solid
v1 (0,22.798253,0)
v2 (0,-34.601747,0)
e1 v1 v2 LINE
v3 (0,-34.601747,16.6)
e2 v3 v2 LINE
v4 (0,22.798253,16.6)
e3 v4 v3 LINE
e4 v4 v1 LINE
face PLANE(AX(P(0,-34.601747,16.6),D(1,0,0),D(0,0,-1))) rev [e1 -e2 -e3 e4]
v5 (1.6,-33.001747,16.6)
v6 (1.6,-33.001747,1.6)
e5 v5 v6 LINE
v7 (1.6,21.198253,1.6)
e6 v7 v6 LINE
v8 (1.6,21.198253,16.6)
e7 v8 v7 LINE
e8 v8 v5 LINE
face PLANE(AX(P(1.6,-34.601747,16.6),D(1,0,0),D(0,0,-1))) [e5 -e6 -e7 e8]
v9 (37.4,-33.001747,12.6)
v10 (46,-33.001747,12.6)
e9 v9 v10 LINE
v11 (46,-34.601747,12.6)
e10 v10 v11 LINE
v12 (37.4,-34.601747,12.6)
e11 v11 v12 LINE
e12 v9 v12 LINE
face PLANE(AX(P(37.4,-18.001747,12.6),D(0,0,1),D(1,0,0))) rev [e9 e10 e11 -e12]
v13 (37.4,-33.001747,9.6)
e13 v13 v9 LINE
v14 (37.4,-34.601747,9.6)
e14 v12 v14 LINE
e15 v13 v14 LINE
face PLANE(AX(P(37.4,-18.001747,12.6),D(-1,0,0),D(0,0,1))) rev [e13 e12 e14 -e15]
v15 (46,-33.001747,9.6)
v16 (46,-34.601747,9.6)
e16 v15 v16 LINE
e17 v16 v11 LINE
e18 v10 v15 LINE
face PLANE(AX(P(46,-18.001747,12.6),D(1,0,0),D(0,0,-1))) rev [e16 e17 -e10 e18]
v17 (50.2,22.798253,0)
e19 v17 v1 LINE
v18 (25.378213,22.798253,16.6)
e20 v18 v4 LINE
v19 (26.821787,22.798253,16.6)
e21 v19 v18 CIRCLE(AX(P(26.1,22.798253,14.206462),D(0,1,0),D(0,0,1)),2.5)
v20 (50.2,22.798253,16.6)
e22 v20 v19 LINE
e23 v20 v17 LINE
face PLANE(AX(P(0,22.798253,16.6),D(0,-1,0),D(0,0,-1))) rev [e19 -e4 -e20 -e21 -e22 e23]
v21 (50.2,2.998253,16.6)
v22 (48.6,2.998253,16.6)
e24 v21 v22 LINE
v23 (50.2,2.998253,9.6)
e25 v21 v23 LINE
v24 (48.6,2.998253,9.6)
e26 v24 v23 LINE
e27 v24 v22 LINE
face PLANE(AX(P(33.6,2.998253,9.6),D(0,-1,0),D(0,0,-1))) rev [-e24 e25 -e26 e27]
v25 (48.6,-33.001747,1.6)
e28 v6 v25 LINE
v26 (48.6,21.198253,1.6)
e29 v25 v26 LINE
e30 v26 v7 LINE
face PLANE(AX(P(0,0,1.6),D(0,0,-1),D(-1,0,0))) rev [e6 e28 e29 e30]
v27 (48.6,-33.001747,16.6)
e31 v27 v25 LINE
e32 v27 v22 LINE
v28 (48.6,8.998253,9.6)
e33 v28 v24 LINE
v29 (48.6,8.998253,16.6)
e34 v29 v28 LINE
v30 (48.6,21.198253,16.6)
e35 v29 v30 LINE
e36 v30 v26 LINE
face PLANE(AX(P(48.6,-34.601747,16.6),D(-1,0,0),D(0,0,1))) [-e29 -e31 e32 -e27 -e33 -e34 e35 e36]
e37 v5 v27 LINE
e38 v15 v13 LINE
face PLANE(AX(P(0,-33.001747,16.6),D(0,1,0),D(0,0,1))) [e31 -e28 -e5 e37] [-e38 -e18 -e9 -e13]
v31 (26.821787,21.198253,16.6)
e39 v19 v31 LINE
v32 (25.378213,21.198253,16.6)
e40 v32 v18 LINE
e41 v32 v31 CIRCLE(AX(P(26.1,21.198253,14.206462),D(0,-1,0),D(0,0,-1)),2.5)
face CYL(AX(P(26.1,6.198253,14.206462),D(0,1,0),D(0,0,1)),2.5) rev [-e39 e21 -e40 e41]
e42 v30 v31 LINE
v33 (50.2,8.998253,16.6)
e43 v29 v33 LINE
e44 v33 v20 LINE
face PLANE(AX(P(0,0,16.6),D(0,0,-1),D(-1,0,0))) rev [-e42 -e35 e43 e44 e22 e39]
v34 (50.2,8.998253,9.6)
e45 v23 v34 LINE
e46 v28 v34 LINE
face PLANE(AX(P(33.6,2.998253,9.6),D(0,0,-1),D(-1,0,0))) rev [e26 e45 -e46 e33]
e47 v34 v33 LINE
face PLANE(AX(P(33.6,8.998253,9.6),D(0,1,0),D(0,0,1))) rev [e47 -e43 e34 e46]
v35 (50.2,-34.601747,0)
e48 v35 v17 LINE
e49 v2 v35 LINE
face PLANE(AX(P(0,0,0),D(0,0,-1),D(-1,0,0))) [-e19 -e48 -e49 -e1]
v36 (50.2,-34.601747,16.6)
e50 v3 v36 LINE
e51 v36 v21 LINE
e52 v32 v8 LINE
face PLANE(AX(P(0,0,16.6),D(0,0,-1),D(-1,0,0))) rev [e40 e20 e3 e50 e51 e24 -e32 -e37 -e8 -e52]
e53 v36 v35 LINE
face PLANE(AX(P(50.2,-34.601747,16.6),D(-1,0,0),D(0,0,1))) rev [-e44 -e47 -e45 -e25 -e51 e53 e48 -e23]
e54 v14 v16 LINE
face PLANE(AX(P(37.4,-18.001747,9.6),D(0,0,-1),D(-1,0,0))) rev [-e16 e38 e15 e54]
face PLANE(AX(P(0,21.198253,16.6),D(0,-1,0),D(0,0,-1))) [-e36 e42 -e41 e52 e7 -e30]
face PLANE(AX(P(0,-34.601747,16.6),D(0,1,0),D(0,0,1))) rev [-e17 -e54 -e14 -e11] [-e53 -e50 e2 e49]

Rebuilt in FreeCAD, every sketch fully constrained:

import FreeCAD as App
import Part
import Sketcher
from FreeCAD import Vector
Q = App.Units.Quantity


def faces_at(feature, points):
    """Names of the faces that lie closest to the given points."""
    faces = feature.Shape.Faces
    near = lambda p: min(range(len(faces)), key=lambda i: faces[i].distToShape(Part.Vertex(*p))[0])
    return sorted({f"Face{near(p) + 1}" for p in points})

doc = App.newDocument("Part")
body = doc.addObject("PartDesign::Body", "Body")

sketch1 = body.newObject("Sketcher::SketchObject", "Sketch")
sketch1.AttachmentSupport = (doc.getObject("XY_Plane"), [""])
sketch1.MapMode = "FlatFace"
sketch1.addGeometry([
    Part.LineSegment(Vector(0, 23, 0), Vector(0, -35, 0)),
    Part.LineSegment(Vector(0, -35, 0), Vector(50, -35, 0)),
    Part.LineSegment(Vector(50, -35, 0), Vector(50, 23, 0)),
    Part.LineSegment(Vector(50, 23, 0), Vector(0, 23, 0)),
], False)
sketch1.addConstraint([
    Sketcher.Constraint("Coincident", 0, 2, 1, 1),
    Sketcher.Constraint("Coincident", 1, 2, 2, 1),
    Sketcher.Constraint("Coincident", 2, 2, 3, 1),
    Sketcher.Constraint("Coincident", 3, 2, 0, 1),
    Sketcher.Constraint("Vertical", 0),
    Sketcher.Constraint("Horizontal", 1),
    Sketcher.Constraint("Vertical", 2),
    Sketcher.Constraint("Horizontal", 3),
    Sketcher.Constraint("PointOnObject", 0, 2, -2),
    Sketcher.Constraint("DistanceX", 1, 1, 1, 2, Q("50.2 mm")),
    Sketcher.Constraint("DistanceY", 0, 2, 0, 1, Q("57.4 mm")),
    Sketcher.Constraint("DistanceY", 0, 2, -1, 1, Q("34.601747 mm")),
])
pad1 = body.newObject("PartDesign::Pad", "Pad")
pad1.Profile = sketch1
pad1.Length = 16.6
doc.recompute()

thickness = body.newObject("PartDesign::Thickness", "Thickness")
thickness.Base = (pad1, faces_at(pad1, [(25.1, -5.902, 16.6)]))
thickness.Value = 1.6
thickness.Reversed = True
thickness.Join = "Intersection"

sketch2 = body.newObject("Sketcher::SketchObject", "Sketch001")
sketch2.AttachmentSupport = (doc.getObject("XZ_Plane"), [""])
sketch2.MapMode = "FlatFace"
sketch2.AttachmentOffset = App.Placement(Vector(0, 0, 34.601747), App.Rotation())
sketch2.addGeometry([
    Part.LineSegment(Vector(37.4, 12.6, 0), Vector(37.4, 9.6, 0)),
    Part.LineSegment(Vector(37.4, 9.6, 0), Vector(46, 9.6, 0)),
    Part.LineSegment(Vector(46, 9.6, 0), Vector(46, 12.6, 0)),
    Part.LineSegment(Vector(46, 12.6, 0), Vector(37.4, 12.6, 0)),
], False)
sketch2.addConstraint([
    Sketcher.Constraint("Coincident", 0, 2, 1, 1),
    Sketcher.Constraint("Coincident", 1, 2, 2, 1),
    Sketcher.Constraint("Coincident", 2, 2, 3, 1),
    Sketcher.Constraint("Coincident", 3, 2, 0, 1),
    Sketcher.Constraint("Vertical", 0),
    Sketcher.Constraint("Horizontal", 1),
    Sketcher.Constraint("Vertical", 2),
    Sketcher.Constraint("Horizontal", 3),
    Sketcher.Constraint("DistanceY", 0, 2, 0, 1, Q("3 mm")),
    Sketcher.Constraint("DistanceX", 1, 1, 1, 2, Q("8.6 mm")),
    Sketcher.Constraint("DistanceX", -1, 1, 1, 2, Q("46 mm")),
    Sketcher.Constraint("DistanceY", -1, 1, 0, 2, Q("9.6 mm")),
])
pocket1 = body.newObject("PartDesign::Pocket", "Pocket")
pocket1.Profile = sketch2
pocket1.Length = 16.6

sketch3 = body.newObject("Sketcher::SketchObject", "Sketch002")
sketch3.AttachmentSupport = (doc.getObject("YZ_Plane"), [""])
sketch3.MapMode = "FlatFace"
sketch3.AttachmentOffset = App.Placement(Vector(0, 0, 50.2), App.Rotation())
sketch3.addGeometry([
    Part.LineSegment(Vector(9, 19, 0), Vector(3, 19, 0)),
    Part.LineSegment(Vector(3, 19, 0), Vector(3, 10, 0)),
    Part.LineSegment(Vector(3, 10, 0), Vector(9, 10, 0)),
    Part.LineSegment(Vector(9, 10, 0), Vector(9, 19, 0)),
], False)
sketch3.addConstraint([
    Sketcher.Constraint("Coincident", 0, 2, 1, 1),
    Sketcher.Constraint("Coincident", 1, 2, 2, 1),
    Sketcher.Constraint("Coincident", 2, 2, 3, 1),
    Sketcher.Constraint("Coincident", 3, 2, 0, 1),
    Sketcher.Constraint("Horizontal", 0),
    Sketcher.Constraint("Vertical", 1),
    Sketcher.Constraint("Horizontal", 2),
    Sketcher.Constraint("Vertical", 3),
    Sketcher.Constraint("DistanceX", 0, 2, 0, 1, Q("6 mm")),
    Sketcher.Constraint("DistanceY", 1, 2, 1, 1, Q("9.2 mm")),
    Sketcher.Constraint("DistanceY", -1, 1, 0, 2, Q("18.8 mm")),
    Sketcher.Constraint("DistanceX", -1, 1, 0, 2, Q("2.998253 mm")),
])
pocket2 = body.newObject("PartDesign::Pocket", "Pocket001")
pocket2.Profile = sketch3
pocket2.Length = 16.6

sketch4 = body.newObject("Sketcher::SketchObject", "Sketch003")
sketch4.AttachmentSupport = (doc.getObject("XZ_Plane"), [""])
sketch4.MapMode = "FlatFace"
sketch4.AttachmentOffset = App.Placement(Vector(0, 0, -22.798253), App.Rotation())
sketch4.addGeometry(Part.Circle(Vector(26.1, 14.2, 0), Vector(0, 0, 1), 2.5), False)
sketch4.addConstraint([
    Sketcher.Constraint("Diameter", 0, Q("5 mm")),
    Sketcher.Constraint("DistanceX", -1, 1, 0, 3, Q("26.1 mm")),
    Sketcher.Constraint("DistanceY", -1, 1, 0, 3, Q("14.206462 mm")),
])
pocket3 = body.newObject("PartDesign::Pocket", "Pocket002")
pocket3.Profile = sketch4
pocket3.Length = 16.6
pocket3.Reversed = True

doc.recompute()
